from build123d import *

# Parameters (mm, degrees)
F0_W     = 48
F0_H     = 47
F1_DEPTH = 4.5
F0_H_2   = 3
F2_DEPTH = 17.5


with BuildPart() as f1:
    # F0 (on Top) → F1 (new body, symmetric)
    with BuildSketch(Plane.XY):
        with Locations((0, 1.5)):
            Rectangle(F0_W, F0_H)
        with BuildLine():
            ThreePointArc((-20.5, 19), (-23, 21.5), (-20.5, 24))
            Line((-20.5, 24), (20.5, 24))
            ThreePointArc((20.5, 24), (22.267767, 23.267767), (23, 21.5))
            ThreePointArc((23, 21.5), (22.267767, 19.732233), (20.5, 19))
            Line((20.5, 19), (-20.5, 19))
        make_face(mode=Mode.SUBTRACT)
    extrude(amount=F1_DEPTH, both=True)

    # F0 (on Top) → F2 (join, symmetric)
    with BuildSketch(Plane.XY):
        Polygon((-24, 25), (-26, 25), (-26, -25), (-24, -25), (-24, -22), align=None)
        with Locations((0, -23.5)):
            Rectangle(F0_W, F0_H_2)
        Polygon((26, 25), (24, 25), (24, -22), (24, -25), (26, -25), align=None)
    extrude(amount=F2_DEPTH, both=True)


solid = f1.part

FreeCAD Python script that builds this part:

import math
import FreeCAD as App
import Part
import Sketcher

doc = App.newDocument("Part")
body = doc.addObject("PartDesign::Body", "Body")

sketch1 = doc.addObject("Sketcher::SketchObject", "Sketch")
body.addObject(sketch1)
sketch1.AttachmentSupport = (doc.XY_Plane, [""])
sketch1.MapMode = "FlatFace"
sketch1.addGeometry(Part.LineSegment(App.Vector(-24, 25, 0), App.Vector(-24, -22, 0)), False)
sketch1.addGeometry(Part.LineSegment(App.Vector(-24, -22, 0), App.Vector(24, -22, 0)), False)
sketch1.addGeometry(Part.LineSegment(App.Vector(24, -22, 0), App.Vector(24, 25, 0)), False)
sketch1.addGeometry(Part.LineSegment(App.Vector(24, 25, 0), App.Vector(-24, 25, 0)), False)
sketch1.addGeometry(Part.LineSegment(App.Vector(20.5, 19, 0), App.Vector(-20.5, 19, 0)), False)
sketch1.addGeometry(Part.ArcOfCircle(Part.Circle(App.Vector(-20.5, 21.5, 0), App.Vector(0, 0, 1), 2.5), math.radians(90), math.radians(270)), False)
sketch1.addGeometry(Part.LineSegment(App.Vector(-20.5, 24, 0), App.Vector(20.5, 24, 0)), False)
sketch1.addGeometry(Part.ArcOfCircle(Part.Circle(App.Vector(20.5, 21.5, 0), App.Vector(0, 0, 1), 2.5), math.radians(0), math.radians(90)), False)
sketch1.addGeometry(Part.ArcOfCircle(Part.Circle(App.Vector(20.5, 21.5, 0), App.Vector(0, 0, 1), 2.5), math.radians(-90), math.radians(0)), False)
sketch1.addConstraint(Sketcher.Constraint("Coincident", 0, 2, 1, 1))
sketch1.addConstraint(Sketcher.Constraint("Coincident", 1, 2, 2, 1))
sketch1.addConstraint(Sketcher.Constraint("Coincident", 2, 2, 3, 1))
sketch1.addConstraint(Sketcher.Constraint("Coincident", 3, 2, 0, 1))
sketch1.addConstraint(Sketcher.Constraint("Tangent", 4, 2, 5, 2))
sketch1.addConstraint(Sketcher.Constraint("Tangent", 5, 1, 6, 1))
sketch1.addConstraint(Sketcher.Constraint("Tangent", 6, 2, 7, 2))
sketch1.addConstraint(Sketcher.Constraint("Tangent", 7, 1, 8, 2))
sketch1.addConstraint(Sketcher.Constraint("Tangent", 8, 1, 4, 1))
sketch1.addConstraint(Sketcher.Constraint("Vertical", 0))
sketch1.addConstraint(Sketcher.Constraint("Horizontal", 1))
sketch1.addConstraint(Sketcher.Constraint("Vertical", 2))
sketch1.addConstraint(Sketcher.Constraint("Horizontal", 3))
sketch1.addConstraint(Sketcher.Constraint("Horizontal", 4))
sketch1.addConstraint(Sketcher.Constraint("Horizontal", 6))
sketch1.addConstraint(Sketcher.Constraint("Equal", 5, 7))
sketch1.addConstraint(Sketcher.Constraint("Horizontal", 8, 3, 7, 1))
sketch1.addConstraint(Sketcher.Constraint("Radius", 5, 2.5))
sketch1.addConstraint(Sketcher.Constraint("DistanceX", 1, 1, 1, 2, 48.0))
sketch1.addConstraint(Sketcher.Constraint("DistanceX", 4, 2, 4, 1, 41.0))
sketch1.addConstraint(Sketcher.Constraint("DistanceY", 0, 2, 0, 1, 47.0))
sketch1.addConstraint(Sketcher.Constraint("DistanceX", 0, 2, -1, 1, 24.0))
sketch1.addConstraint(Sketcher.Constraint("DistanceY", 0, 2, -1, 1, 22.0))
sketch1.addConstraint(Sketcher.Constraint("DistanceY", -1, 1, 4, 2, 19.0))
sketch1.addConstraint(Sketcher.Constraint("DistanceX", -1, 1, 7, 1, 23.0))
pad1 = doc.addObject("PartDesign::Pad", "Pad")
body.addObject(pad1)
pad1.Profile = sketch1
pad1.Length = 9
pad1.Midplane = True

sketch2 = doc.addObject("Sketcher::SketchObject", "Sketch001")
body.addObject(sketch2)
sketch2.AttachmentSupport = (doc.XY_Plane, [""])
sketch2.MapMode = "FlatFace"
sketch2.addGeometry(Part.LineSegment(App.Vector(-24, 25, 0), App.Vector(-26, 25, 0)), False)
sketch2.addGeometry(Part.LineSegment(App.Vector(-26, 25, 0), App.Vector(-26, -25, 0)), False)
sketch2.addGeometry(Part.LineSegment(App.Vector(-26, -25, 0), App.Vector(26, -25, 0)), False)
sketch2.addGeometry(Part.LineSegment(App.Vector(26, -25, 0), App.Vector(26, 25, 0)), False)
sketch2.addGeometry(Part.LineSegment(App.Vector(26, 25, 0), App.Vector(24, 25, 0)), False)
sketch2.addGeometry(Part.LineSegment(App.Vector(24, 25, 0), App.Vector(24, -22, 0)), False)
sketch2.addGeometry(Part.LineSegment(App.Vector(24, -22, 0), App.Vector(-24, -22, 0)), False)
sketch2.addGeometry(Part.LineSegment(App.Vector(-24, -22, 0), App.Vector(-24, 25, 0)), False)
sketch2.addConstraint(Sketcher.Constraint("Coincident", 0, 2, 1, 1))
sketch2.addConstraint(Sketcher.Constraint("Coincident", 1, 2, 2, 1))
sketch2.addConstraint(Sketcher.Constraint("Coincident", 2, 2, 3, 1))
sketch2.addConstraint(Sketcher.Constraint("Coincident", 3, 2, 4, 1))
sketch2.addConstraint(Sketcher.Constraint("Coincident", 4, 2, 5, 1))
sketch2.addConstraint(Sketcher.Constraint("Coincident", 5, 2, 6, 1))
sketch2.addConstraint(Sketcher.Constraint("Coincident", 6, 2, 7, 1))
sketch2.addConstraint(Sketcher.Constraint("Coincident", 7, 2, 0, 1))
sketch2.addConstraint(Sketcher.Constraint("Horizontal", 0))
sketch2.addConstraint(Sketcher.Constraint("Vertical", 1))
sketch2.addConstraint(Sketcher.Constraint("Horizontal", 2))
sketch2.addConstraint(Sketcher.Constraint("Vertical", 3))
sketch2.addConstraint(Sketcher.Constraint("Horizontal", 4))
sketch2.addConstraint(Sketcher.Constraint("Vertical", 5))
sketch2.addConstraint(Sketcher.Constraint("Horizontal", 6))
sketch2.addConstraint(Sketcher.Constraint("Vertical", 7))
sketch2.addConstraint(Sketcher.Constraint("Symmetric", 0, 2, 2, 2, -1, 1))
sketch2.addConstraint(Sketcher.Constraint("Symmetric", 4, 2, 7, 2, -2))
sketch2.addConstraint(Sketcher.Constraint("DistanceX", 0, 2, 0, 1, 2.0))
sketch2.addConstraint(Sketcher.Constraint("DistanceX", 2, 1, 2, 2, 52.0))
sketch2.addConstraint(Sketcher.Constraint("DistanceY", 1, 2, 1, 1, 50.0))
sketch2.addConstraint(Sketcher.Constraint("DistanceY", 5, 2, 5, 1, 47.0))
pad2 = doc.addObject("PartDesign::Pad", "Pad001")
body.addObject(pad2)
pad2.Profile = sketch2
pad2.Length = 35
pad2.Midplane = True

doc.recompute()
